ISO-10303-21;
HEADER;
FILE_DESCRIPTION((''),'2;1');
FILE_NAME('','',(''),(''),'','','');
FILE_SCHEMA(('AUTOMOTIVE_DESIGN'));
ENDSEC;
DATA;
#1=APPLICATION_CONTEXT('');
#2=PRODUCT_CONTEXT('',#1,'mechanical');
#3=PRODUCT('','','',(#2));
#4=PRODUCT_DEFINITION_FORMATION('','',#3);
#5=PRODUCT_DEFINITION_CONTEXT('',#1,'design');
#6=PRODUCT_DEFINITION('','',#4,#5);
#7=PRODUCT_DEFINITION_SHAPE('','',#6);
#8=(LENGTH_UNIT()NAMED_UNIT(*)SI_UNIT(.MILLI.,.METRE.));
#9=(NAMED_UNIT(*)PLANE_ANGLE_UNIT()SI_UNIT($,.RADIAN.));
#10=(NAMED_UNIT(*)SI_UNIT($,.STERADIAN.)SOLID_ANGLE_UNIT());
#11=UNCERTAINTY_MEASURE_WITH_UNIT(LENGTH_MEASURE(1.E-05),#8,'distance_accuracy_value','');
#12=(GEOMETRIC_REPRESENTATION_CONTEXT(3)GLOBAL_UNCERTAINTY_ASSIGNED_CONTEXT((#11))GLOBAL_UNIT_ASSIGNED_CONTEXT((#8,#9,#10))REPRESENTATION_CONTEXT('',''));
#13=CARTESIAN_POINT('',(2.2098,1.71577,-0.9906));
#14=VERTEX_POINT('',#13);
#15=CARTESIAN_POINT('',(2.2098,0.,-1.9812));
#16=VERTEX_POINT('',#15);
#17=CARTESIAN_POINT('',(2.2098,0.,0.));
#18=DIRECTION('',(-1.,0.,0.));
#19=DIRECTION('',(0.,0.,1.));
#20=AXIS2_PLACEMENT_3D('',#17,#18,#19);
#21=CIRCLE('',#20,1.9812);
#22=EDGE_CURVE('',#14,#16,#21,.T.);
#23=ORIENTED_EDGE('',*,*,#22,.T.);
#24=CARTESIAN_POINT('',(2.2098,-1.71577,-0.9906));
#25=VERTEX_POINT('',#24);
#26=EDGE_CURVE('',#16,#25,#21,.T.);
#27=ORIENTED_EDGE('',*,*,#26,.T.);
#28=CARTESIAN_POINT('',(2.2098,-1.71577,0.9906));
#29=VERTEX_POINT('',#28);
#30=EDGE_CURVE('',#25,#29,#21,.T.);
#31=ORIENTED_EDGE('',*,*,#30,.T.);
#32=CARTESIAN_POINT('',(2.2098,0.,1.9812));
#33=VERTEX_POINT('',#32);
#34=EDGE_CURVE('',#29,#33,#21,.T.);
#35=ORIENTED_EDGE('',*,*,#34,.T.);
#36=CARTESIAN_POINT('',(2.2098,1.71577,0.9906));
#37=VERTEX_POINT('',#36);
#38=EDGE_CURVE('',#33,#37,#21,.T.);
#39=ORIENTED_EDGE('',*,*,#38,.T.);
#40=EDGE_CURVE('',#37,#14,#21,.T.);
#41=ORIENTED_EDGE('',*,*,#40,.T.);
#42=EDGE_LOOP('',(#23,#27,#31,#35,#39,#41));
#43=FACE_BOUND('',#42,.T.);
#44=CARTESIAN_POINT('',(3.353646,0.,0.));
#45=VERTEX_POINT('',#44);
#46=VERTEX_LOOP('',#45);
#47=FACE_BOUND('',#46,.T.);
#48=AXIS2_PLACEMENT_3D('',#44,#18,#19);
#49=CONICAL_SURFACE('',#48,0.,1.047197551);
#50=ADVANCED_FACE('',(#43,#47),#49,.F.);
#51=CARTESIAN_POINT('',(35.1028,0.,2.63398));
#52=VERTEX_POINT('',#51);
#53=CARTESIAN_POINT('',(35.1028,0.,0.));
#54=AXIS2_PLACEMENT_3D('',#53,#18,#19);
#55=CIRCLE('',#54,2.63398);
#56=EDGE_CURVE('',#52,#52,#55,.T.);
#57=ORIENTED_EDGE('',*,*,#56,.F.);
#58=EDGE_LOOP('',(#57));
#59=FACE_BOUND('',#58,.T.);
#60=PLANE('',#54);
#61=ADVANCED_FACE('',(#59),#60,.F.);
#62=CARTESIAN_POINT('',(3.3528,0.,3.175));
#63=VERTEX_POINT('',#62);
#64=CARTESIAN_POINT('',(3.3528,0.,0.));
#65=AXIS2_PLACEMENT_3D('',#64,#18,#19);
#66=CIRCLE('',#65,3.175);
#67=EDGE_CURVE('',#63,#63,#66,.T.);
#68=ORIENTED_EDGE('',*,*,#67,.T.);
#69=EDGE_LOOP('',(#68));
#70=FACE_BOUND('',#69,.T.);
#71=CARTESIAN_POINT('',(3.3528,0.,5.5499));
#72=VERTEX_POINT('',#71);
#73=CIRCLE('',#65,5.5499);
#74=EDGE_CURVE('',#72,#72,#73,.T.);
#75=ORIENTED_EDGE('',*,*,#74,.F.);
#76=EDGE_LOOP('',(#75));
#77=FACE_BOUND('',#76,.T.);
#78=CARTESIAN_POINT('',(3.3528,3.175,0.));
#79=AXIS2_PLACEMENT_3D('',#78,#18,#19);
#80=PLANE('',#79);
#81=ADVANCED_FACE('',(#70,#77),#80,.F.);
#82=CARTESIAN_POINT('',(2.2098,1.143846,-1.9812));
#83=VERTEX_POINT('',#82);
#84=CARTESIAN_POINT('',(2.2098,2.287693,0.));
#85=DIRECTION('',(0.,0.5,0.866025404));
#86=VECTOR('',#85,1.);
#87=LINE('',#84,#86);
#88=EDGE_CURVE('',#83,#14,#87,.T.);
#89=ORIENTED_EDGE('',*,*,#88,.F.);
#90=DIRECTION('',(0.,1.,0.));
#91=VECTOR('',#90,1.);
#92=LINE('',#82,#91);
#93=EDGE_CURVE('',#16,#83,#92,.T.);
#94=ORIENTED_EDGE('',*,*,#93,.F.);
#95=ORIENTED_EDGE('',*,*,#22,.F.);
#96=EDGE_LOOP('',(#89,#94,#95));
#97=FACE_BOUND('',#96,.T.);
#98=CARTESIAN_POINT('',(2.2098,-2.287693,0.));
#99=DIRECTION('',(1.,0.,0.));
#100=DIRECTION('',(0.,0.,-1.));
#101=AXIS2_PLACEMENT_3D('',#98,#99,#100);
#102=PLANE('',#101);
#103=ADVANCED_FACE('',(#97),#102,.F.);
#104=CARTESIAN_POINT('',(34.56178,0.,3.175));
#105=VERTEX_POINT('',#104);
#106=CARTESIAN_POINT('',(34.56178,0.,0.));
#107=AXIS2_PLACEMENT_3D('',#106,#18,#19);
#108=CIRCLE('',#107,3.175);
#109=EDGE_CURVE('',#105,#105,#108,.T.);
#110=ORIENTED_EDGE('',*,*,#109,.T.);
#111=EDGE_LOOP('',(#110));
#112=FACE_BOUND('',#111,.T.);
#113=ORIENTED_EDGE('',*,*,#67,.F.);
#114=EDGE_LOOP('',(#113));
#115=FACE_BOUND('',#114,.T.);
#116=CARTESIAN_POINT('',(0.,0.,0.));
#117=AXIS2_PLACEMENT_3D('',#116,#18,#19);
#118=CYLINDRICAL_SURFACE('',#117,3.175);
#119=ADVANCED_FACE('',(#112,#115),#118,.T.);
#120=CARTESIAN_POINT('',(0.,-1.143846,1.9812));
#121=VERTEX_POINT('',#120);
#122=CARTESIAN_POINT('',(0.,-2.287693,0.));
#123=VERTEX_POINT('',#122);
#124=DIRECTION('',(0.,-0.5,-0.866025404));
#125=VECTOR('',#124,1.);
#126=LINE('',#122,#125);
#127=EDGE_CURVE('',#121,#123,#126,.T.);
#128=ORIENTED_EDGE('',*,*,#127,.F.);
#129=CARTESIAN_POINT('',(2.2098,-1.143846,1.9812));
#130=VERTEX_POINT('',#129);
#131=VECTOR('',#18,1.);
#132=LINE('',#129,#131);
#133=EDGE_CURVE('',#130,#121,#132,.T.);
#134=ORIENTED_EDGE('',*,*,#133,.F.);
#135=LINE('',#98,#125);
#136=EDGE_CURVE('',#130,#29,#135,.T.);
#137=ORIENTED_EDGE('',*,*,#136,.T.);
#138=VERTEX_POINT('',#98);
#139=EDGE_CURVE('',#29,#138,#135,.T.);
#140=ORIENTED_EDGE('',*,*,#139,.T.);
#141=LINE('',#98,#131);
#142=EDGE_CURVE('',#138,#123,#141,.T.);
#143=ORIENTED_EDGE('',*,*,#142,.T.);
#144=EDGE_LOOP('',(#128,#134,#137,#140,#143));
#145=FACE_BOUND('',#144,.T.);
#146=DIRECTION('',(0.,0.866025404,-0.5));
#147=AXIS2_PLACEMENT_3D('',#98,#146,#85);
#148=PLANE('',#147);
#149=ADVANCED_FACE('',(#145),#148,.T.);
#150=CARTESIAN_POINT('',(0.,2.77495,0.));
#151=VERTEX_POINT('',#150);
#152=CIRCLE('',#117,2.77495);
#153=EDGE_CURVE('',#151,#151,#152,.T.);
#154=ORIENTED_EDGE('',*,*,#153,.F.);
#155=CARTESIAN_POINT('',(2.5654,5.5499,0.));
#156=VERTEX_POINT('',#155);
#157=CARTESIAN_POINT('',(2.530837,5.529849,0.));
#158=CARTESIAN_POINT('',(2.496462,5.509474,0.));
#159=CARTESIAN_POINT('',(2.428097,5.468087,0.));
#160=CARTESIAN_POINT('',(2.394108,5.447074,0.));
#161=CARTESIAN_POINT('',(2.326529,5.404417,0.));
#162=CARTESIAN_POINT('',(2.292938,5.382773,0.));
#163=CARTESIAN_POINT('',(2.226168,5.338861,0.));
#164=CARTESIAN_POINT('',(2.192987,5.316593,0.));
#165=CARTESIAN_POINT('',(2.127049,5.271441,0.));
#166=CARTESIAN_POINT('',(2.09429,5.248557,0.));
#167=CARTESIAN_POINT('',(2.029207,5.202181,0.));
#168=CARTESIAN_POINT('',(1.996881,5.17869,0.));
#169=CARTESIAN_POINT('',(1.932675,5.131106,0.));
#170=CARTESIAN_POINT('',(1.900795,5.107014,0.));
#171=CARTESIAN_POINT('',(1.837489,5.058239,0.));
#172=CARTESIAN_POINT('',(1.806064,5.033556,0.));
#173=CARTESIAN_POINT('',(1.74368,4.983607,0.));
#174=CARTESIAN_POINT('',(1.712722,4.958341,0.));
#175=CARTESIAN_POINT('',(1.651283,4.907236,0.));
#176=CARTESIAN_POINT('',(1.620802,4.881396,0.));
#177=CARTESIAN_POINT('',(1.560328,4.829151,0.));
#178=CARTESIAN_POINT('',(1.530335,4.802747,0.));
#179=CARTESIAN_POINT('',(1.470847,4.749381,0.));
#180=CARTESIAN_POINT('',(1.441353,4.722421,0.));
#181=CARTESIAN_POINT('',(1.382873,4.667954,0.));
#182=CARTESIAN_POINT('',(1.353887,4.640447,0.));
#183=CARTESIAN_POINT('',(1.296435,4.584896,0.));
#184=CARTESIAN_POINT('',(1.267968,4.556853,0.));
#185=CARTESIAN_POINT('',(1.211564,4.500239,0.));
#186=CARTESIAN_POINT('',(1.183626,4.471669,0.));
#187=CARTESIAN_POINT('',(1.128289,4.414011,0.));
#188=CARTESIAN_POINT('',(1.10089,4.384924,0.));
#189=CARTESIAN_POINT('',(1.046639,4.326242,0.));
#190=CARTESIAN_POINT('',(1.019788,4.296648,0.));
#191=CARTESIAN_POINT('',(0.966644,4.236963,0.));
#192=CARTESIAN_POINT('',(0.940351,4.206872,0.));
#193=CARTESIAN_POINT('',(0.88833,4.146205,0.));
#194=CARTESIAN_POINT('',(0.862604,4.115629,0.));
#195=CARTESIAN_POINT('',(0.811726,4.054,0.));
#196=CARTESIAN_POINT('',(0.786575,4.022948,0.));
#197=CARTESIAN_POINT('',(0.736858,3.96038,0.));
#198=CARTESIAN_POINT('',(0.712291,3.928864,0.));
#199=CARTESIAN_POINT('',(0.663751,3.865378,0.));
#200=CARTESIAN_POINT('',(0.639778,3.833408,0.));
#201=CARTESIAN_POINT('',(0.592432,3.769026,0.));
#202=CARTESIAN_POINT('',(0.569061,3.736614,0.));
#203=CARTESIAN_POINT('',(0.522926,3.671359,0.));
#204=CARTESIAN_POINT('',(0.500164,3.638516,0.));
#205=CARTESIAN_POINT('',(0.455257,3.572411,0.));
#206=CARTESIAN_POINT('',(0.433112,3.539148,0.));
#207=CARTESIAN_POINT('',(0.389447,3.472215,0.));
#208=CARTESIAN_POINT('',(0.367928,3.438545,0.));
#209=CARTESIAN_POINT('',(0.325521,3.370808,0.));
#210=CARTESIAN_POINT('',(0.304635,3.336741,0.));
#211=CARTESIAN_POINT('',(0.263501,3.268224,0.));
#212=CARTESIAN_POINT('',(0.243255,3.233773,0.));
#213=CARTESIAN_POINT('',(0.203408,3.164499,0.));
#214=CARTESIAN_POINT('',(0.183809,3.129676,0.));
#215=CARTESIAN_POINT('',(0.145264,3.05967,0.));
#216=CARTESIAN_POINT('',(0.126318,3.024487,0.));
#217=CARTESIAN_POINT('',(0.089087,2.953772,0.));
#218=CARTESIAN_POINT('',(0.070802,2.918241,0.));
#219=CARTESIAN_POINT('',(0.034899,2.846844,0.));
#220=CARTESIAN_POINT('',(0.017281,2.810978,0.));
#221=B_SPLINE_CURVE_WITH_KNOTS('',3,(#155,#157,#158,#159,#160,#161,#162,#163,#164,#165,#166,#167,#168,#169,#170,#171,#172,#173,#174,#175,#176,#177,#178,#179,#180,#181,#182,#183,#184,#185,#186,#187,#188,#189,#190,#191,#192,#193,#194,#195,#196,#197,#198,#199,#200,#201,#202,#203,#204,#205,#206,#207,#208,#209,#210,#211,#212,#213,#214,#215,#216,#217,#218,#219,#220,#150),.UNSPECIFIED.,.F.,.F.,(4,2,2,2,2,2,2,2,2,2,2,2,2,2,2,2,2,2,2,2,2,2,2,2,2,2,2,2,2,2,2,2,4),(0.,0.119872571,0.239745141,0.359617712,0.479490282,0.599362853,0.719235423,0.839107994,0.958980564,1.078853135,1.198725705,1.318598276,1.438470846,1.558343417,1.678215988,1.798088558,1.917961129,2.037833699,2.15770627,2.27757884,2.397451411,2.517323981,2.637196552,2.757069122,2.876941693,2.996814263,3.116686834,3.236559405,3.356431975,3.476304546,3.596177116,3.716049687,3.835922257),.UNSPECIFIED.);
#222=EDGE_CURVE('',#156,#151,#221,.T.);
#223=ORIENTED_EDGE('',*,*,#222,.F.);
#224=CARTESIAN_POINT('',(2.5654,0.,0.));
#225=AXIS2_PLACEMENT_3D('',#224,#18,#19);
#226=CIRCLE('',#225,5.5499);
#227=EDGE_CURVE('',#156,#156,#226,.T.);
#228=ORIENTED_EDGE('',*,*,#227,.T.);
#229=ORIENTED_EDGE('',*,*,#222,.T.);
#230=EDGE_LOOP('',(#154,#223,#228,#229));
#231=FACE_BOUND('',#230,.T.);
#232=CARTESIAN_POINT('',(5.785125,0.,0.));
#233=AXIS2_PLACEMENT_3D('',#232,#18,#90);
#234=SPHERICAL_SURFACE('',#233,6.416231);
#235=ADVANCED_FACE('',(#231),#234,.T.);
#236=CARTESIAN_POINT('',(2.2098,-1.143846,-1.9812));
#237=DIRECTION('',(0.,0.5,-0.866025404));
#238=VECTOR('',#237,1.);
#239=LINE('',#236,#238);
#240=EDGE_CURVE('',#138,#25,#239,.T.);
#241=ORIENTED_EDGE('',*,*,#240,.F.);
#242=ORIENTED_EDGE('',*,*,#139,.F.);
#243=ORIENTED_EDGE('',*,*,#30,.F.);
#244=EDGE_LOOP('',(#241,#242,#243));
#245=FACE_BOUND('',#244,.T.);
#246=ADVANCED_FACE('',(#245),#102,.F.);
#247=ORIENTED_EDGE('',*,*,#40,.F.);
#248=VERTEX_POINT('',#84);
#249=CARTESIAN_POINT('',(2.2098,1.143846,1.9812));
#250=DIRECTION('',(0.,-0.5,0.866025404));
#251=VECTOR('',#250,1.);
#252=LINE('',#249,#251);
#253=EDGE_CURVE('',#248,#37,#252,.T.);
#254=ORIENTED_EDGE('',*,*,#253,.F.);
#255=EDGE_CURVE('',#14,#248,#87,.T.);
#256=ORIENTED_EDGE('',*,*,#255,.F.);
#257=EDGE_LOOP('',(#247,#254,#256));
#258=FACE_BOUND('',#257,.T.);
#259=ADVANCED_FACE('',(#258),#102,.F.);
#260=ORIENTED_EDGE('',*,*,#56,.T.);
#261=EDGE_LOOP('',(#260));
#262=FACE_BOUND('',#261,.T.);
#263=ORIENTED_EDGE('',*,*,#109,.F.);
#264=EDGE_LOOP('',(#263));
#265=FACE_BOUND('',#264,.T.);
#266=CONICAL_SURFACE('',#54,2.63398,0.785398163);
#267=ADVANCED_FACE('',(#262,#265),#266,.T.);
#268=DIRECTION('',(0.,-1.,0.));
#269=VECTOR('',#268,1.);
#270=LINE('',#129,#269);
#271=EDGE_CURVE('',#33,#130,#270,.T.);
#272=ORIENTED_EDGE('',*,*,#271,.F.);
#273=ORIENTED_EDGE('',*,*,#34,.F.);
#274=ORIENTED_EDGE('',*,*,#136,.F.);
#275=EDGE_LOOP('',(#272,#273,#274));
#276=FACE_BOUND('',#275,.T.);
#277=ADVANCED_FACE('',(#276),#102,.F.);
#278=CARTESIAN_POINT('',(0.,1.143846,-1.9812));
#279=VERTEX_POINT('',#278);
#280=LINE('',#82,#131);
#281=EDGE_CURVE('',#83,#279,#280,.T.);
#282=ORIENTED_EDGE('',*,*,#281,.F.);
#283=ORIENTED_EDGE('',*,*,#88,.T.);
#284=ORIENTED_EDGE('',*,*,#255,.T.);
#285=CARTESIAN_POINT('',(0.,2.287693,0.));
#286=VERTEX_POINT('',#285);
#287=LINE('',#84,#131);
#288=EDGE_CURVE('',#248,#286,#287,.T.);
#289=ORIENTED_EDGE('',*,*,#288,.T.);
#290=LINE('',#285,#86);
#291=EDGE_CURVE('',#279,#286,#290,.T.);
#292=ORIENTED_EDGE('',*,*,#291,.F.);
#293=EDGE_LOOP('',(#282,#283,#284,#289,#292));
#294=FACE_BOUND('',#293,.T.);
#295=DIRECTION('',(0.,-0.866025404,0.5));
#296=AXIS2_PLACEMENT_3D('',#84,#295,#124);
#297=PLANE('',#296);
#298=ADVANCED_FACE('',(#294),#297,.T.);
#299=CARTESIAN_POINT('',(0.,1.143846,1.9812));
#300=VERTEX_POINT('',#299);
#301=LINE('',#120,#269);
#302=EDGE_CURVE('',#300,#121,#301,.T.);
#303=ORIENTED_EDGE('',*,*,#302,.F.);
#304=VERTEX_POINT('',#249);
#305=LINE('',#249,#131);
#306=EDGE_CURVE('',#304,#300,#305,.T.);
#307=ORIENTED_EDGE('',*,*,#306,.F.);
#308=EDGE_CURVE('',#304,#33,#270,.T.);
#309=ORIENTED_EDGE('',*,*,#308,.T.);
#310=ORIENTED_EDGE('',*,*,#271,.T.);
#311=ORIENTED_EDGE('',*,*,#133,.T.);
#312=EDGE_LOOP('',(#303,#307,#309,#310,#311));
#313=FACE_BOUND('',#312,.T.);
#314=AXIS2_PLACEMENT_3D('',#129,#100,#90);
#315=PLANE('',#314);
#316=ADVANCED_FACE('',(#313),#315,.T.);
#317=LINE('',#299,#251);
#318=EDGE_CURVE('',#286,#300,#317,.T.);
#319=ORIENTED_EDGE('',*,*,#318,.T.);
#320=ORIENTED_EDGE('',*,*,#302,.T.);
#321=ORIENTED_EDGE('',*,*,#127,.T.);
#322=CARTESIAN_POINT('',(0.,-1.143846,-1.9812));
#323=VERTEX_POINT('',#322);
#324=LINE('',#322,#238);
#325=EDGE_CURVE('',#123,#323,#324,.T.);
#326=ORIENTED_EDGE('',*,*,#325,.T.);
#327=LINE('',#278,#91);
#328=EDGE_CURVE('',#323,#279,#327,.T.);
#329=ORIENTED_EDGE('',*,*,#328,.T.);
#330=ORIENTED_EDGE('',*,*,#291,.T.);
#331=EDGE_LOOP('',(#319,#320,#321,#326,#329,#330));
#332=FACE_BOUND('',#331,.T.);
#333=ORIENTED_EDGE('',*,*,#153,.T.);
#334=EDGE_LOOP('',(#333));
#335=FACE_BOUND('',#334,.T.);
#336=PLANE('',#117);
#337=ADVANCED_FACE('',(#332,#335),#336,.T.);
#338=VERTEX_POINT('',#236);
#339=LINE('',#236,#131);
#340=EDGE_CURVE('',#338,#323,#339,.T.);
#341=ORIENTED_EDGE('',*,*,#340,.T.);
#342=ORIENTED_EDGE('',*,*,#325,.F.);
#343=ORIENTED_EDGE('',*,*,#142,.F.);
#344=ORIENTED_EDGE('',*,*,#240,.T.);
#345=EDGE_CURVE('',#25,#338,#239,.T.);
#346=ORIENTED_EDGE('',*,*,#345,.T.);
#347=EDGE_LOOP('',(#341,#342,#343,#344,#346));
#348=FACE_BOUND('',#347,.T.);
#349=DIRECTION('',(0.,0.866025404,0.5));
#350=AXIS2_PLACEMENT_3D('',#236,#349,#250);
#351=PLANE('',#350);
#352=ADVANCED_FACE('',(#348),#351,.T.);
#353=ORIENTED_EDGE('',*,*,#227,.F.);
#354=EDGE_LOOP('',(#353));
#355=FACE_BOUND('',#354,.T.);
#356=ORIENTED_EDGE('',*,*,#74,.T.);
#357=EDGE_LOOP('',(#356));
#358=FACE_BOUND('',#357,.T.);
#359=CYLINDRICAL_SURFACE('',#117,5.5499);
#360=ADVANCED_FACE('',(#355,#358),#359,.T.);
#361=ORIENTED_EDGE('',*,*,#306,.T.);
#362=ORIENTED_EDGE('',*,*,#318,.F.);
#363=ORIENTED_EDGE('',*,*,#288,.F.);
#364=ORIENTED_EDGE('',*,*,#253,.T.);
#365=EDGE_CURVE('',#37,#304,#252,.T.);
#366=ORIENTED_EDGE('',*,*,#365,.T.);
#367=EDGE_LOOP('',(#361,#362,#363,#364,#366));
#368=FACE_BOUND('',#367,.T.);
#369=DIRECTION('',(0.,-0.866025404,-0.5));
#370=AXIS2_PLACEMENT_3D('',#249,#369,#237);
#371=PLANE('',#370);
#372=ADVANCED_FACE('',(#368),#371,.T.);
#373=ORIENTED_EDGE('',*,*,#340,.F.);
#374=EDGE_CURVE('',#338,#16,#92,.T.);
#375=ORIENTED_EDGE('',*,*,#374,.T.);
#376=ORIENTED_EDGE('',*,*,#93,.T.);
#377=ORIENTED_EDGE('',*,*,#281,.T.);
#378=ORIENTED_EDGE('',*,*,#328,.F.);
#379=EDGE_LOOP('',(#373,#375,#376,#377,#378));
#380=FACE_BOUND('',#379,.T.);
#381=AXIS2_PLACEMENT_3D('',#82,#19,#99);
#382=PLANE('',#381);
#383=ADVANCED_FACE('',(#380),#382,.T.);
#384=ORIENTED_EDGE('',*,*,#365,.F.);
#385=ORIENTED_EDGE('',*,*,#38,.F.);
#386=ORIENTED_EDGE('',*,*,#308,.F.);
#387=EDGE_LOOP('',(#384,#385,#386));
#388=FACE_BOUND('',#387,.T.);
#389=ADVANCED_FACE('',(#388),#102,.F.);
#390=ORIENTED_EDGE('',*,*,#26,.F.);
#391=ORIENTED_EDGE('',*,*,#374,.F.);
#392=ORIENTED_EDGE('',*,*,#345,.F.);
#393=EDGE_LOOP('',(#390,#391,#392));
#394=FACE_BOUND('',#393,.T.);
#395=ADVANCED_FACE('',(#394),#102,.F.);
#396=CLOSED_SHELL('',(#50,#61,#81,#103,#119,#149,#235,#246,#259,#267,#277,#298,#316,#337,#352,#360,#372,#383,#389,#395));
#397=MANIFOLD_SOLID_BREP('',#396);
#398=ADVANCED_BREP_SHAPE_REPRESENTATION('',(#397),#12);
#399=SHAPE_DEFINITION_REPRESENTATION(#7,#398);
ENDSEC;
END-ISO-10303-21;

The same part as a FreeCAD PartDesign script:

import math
import FreeCAD as App
import Part
import Sketcher
from FreeCAD import Vector
Q = App.Units.Quantity


def add_polygon(sketch, points):
    """Adds a closed chain of lines whose ends are joined by coincident constraints."""
    first, n = sketch.GeometryCount, len(points)
    for a, b in zip(points, points[1:] + points[:1]):
        sketch.addGeometry(Part.LineSegment(App.Vector(*a, 0), App.Vector(*b, 0)), False)
    for i in range(n):
        sketch.addConstraint(Sketcher.Constraint("Coincident", first + i, 2, first + (i + 1) % n, 1))

doc = App.newDocument("Part")
body = doc.addObject("PartDesign::Body", "Body")

# Sketch on XY plane
sketch1 = body.newObject("Sketcher::SketchObject", "Sketch")
sketch1.AttachmentSupport = (doc.getObject("XY_Plane"), [""])
sketch1.MapMode = "FlatFace"
sketch1.addGeometry(Part.LineSegment(Vector(35.1028, 0, 0), Vector(35.1028, 2.63398, 0)), False)
sketch1.addGeometry(Part.LineSegment(Vector(35.1028, 2.63398, 0), Vector(34.56178, 3.175, 0)), False)
sketch1.addGeometry(Part.LineSegment(Vector(34.56178, 3.175, 0), Vector(3.3528, 3.175, 0)), False)
sketch1.addGeometry(Part.LineSegment(Vector(3.3528, 3.175, 0), Vector(3.3528, 5.5499, 0)), False)
sketch1.addGeometry(Part.LineSegment(Vector(3.3528, 5.5499, 0), Vector(2.5654, 5.5499, 0)), False)
sketch1.addGeometry(Part.ArcOfCircle(Part.Circle(Vector(5.785125, 0, 0), Vector(0, 0, 1), 6.416231), math.radians(120.119782), math.radians(154.374371)), False)
sketch1.addGeometry(Part.LineSegment(Vector(0, 2.77495, 0), Vector(0, 0, 0)), False)
sketch1.addGeometry(Part.LineSegment(Vector(0, 0, 0), Vector(35.1028, 0, 0)), False)
sketch1.addConstraint(Sketcher.Constraint("Coincident", 0, 2, 1, 1))
sketch1.addConstraint(Sketcher.Constraint("Coincident", 1, 2, 2, 1))
sketch1.addConstraint(Sketcher.Constraint("Coincident", 2, 2, 3, 1))
sketch1.addConstraint(Sketcher.Constraint("Coincident", 3, 2, 4, 1))
sketch1.addConstraint(Sketcher.Constraint("Coincident", 4, 2, 5, 1))
sketch1.addConstraint(Sketcher.Constraint("Coincident", 5, 2, 6, 1))
sketch1.addConstraint(Sketcher.Constraint("Coincident", 6, 2, 7, 1))
sketch1.addConstraint(Sketcher.Constraint("Coincident", 7, 2, 0, 1))
sketch1.addConstraint(Sketcher.Constraint("Vertical", 0))
sketch1.addConstraint(Sketcher.Constraint("Horizontal", 2))
sketch1.addConstraint(Sketcher.Constraint("Vertical", 3))
sketch1.addConstraint(Sketcher.Constraint("Horizontal", 4))
sketch1.addConstraint(Sketcher.Constraint("Vertical", 6))
sketch1.addConstraint(Sketcher.Constraint("Horizontal", 7))
sketch1.addConstraint(Sketcher.Constraint("Coincident", 6, 2, -1, 1))
sketch1.addConstraint(Sketcher.Constraint("PointOnObject", 5, 3, -1))
sketch1.addConstraint(Sketcher.Constraint("Angle", 1, Q("135 deg")))
sketch1.addConstraint(Sketcher.Constraint("DistanceX", 4, 2, 4, 1, Q("0.031 in")))
sketch1.addConstraint(Sketcher.Constraint("DistanceX", 7, 1, 7, 2, Q("1.382 in")))
sketch1.addConstraint(Sketcher.Constraint("DistanceX", 2, 2, 0, 2, Q("1.25 in")))
sketch1.addConstraint(Sketcher.Constraint("DistanceX", 2, 2, 2, 1, Q("1.2287 in")))
sketch1.addConstraint(Sketcher.Constraint("DistanceY", 0, 1, 0, 2, Q("0.1037 in")))
sketch1.addConstraint(Sketcher.Constraint("DistanceY", 3, 1, 3, 2, Q("0.0935 in")))
sketch1.addConstraint(Sketcher.Constraint("Radius", 5, Q("6.416231 mm")))
revolution = body.newObject("PartDesign::Revolution", "Revolution")
revolution.Profile = sketch1
revolution.ReferenceAxis = (sketch1, ["H_Axis"])
revolution.Angle = 360

# Sketch on XY plane
sketch2 = body.newObject("Sketcher::SketchObject", "Sketch001")
sketch2.AttachmentSupport = (doc.getObject("XY_Plane"), [""])
sketch2.MapMode = "FlatFace"
add_polygon(sketch2, [(2.2098, 1.9812), (0, 1.9812), (0, 0), (3.353646, 0)])  # lines 0-3
sketch2.addConstraint(Sketcher.Constraint("Horizontal", 0))
sketch2.addConstraint(Sketcher.Constraint("Vertical", 1))
sketch2.addConstraint(Sketcher.Constraint("Horizontal", 2))
sketch2.addConstraint(Sketcher.Constraint("Coincident", 1, 2, -1, 1))
sketch2.addConstraint(Sketcher.Constraint("Angle", 3, Q("120 deg")))
sketch2.addConstraint(Sketcher.Constraint("DistanceX", 0, 2, 0, 1, Q("0.087 in")))
sketch2.addConstraint(Sketcher.Constraint("DistanceY", 1, 2, 1, 1, Q("0.078 in")))
groove = body.newObject("PartDesign::Groove", "Groove")
groove.Profile = sketch2
groove.ReferenceAxis = (sketch2, ["H_Axis"])
groove.Angle = 360

# Sketch on YZ plane
sketch3 = body.newObject("Sketcher::SketchObject", "Sketch002")
sketch3.AttachmentSupport = (doc.getObject("YZ_Plane"), [""])
sketch3.MapMode = "FlatFace"
add_polygon(sketch3, [(1.143846, 1.9812), (-1.143846, 1.9812), (-2.287693, 0), (-1.143846, -1.9812), (1.143846, -1.9812), (2.287693, 0)])  # lines 0-5
sketch3.addConstraint(Sketcher.Constraint("Horizontal", 0))
sketch3.addConstraint(Sketcher.Constraint("Horizontal", 3))
sketch3.addConstraint(Sketcher.Constraint("Symmetric", 0, 2, 3, 2, -1, 1))
sketch3.addConstraint(Sketcher.Constraint("Symmetric", 1, 2, 4, 2, -1, 1))
sketch3.addConstraint(Sketcher.Constraint("PointOnObject", 1, 2, -1))
sketch3.addConstraint(Sketcher.Constraint("Parallel", 2, 5))
sketch3.addConstraint(Sketcher.Constraint("Vertical", 0, 2, 2, 2))
sketch3.addConstraint(Sketcher.Constraint("Angle", 1, Q("-120 deg")))
sketch3.addConstraint(Sketcher.Constraint("DistanceY", -1, 1, 0, 2, Q("0.078 in")))
sketch3.addConstraint(Sketcher.Constraint("DistanceX", 1, 2, 3, 2, Q("0.1351 in")))
pocket1 = body.newObject("PartDesign::Pocket", "Pocket")
pocket1.Profile = sketch3
pocket1.Length = Q("0.087 in")
pocket1.Reversed = True

doc.recompute()
